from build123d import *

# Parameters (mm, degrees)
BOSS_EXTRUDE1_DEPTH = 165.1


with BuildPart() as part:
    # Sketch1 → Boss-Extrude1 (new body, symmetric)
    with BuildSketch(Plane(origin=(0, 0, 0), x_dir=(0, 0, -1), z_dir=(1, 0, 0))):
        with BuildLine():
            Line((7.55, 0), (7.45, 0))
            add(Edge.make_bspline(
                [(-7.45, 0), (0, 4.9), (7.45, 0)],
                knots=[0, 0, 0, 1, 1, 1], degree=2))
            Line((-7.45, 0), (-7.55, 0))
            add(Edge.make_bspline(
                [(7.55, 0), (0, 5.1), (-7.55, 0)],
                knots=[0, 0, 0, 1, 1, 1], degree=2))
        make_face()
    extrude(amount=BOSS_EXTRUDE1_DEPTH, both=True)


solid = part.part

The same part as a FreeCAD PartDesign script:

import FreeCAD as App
import Part
import Sketcher

V = App.Vector

doc = App.newDocument("Part")
body = doc.addObject("PartDesign::Body", "Body")

sketch1 = doc.addObject("Sketcher::SketchObject", "Sketch")
body.addObject(sketch1)
sketch1.AttachmentSupport = (doc.YZ_Plane, [""])
sketch1.MapMode = "FlatFace"
sketch1.addGeometry([
    Part.LineSegment(V(0, -7.45, 0), V(0, -7.55, 0)),
    Part.BSplineCurve([V(0, -7.55, 0), V(5.1, 0, 0), V(0, 7.55, 0)], [3, 3], [0, 1], False, 2, [1, 1, 1], False),
    Part.LineSegment(V(0, 7.55, 0), V(0, 7.45, 0)),
    Part.BSplineCurve([V(0, 7.45, 0), V(4.9, 0, 0), V(0, -7.45, 0)], [3, 3], [0, 1], False, 2, [1, 1, 1], False),
], False)
sketch1.addConstraint([
    Sketcher.Constraint("Block", 1),
    Sketcher.Constraint("Block", 3),
    Sketcher.Constraint("Coincident", 0, 2, 1, 1),
    Sketcher.Constraint("Coincident", 1, 2, 2, 1),
    Sketcher.Constraint("Coincident", 2, 2, 3, 1),
    Sketcher.Constraint("Coincident", 3, 2, 0, 1),
])
pad1 = doc.addObject("PartDesign::Pad", "Pad")
body.addObject(pad1)
pad1.Profile = sketch1
pad1.Length = 330.2
pad1.Midplane = True

doc.recompute()
